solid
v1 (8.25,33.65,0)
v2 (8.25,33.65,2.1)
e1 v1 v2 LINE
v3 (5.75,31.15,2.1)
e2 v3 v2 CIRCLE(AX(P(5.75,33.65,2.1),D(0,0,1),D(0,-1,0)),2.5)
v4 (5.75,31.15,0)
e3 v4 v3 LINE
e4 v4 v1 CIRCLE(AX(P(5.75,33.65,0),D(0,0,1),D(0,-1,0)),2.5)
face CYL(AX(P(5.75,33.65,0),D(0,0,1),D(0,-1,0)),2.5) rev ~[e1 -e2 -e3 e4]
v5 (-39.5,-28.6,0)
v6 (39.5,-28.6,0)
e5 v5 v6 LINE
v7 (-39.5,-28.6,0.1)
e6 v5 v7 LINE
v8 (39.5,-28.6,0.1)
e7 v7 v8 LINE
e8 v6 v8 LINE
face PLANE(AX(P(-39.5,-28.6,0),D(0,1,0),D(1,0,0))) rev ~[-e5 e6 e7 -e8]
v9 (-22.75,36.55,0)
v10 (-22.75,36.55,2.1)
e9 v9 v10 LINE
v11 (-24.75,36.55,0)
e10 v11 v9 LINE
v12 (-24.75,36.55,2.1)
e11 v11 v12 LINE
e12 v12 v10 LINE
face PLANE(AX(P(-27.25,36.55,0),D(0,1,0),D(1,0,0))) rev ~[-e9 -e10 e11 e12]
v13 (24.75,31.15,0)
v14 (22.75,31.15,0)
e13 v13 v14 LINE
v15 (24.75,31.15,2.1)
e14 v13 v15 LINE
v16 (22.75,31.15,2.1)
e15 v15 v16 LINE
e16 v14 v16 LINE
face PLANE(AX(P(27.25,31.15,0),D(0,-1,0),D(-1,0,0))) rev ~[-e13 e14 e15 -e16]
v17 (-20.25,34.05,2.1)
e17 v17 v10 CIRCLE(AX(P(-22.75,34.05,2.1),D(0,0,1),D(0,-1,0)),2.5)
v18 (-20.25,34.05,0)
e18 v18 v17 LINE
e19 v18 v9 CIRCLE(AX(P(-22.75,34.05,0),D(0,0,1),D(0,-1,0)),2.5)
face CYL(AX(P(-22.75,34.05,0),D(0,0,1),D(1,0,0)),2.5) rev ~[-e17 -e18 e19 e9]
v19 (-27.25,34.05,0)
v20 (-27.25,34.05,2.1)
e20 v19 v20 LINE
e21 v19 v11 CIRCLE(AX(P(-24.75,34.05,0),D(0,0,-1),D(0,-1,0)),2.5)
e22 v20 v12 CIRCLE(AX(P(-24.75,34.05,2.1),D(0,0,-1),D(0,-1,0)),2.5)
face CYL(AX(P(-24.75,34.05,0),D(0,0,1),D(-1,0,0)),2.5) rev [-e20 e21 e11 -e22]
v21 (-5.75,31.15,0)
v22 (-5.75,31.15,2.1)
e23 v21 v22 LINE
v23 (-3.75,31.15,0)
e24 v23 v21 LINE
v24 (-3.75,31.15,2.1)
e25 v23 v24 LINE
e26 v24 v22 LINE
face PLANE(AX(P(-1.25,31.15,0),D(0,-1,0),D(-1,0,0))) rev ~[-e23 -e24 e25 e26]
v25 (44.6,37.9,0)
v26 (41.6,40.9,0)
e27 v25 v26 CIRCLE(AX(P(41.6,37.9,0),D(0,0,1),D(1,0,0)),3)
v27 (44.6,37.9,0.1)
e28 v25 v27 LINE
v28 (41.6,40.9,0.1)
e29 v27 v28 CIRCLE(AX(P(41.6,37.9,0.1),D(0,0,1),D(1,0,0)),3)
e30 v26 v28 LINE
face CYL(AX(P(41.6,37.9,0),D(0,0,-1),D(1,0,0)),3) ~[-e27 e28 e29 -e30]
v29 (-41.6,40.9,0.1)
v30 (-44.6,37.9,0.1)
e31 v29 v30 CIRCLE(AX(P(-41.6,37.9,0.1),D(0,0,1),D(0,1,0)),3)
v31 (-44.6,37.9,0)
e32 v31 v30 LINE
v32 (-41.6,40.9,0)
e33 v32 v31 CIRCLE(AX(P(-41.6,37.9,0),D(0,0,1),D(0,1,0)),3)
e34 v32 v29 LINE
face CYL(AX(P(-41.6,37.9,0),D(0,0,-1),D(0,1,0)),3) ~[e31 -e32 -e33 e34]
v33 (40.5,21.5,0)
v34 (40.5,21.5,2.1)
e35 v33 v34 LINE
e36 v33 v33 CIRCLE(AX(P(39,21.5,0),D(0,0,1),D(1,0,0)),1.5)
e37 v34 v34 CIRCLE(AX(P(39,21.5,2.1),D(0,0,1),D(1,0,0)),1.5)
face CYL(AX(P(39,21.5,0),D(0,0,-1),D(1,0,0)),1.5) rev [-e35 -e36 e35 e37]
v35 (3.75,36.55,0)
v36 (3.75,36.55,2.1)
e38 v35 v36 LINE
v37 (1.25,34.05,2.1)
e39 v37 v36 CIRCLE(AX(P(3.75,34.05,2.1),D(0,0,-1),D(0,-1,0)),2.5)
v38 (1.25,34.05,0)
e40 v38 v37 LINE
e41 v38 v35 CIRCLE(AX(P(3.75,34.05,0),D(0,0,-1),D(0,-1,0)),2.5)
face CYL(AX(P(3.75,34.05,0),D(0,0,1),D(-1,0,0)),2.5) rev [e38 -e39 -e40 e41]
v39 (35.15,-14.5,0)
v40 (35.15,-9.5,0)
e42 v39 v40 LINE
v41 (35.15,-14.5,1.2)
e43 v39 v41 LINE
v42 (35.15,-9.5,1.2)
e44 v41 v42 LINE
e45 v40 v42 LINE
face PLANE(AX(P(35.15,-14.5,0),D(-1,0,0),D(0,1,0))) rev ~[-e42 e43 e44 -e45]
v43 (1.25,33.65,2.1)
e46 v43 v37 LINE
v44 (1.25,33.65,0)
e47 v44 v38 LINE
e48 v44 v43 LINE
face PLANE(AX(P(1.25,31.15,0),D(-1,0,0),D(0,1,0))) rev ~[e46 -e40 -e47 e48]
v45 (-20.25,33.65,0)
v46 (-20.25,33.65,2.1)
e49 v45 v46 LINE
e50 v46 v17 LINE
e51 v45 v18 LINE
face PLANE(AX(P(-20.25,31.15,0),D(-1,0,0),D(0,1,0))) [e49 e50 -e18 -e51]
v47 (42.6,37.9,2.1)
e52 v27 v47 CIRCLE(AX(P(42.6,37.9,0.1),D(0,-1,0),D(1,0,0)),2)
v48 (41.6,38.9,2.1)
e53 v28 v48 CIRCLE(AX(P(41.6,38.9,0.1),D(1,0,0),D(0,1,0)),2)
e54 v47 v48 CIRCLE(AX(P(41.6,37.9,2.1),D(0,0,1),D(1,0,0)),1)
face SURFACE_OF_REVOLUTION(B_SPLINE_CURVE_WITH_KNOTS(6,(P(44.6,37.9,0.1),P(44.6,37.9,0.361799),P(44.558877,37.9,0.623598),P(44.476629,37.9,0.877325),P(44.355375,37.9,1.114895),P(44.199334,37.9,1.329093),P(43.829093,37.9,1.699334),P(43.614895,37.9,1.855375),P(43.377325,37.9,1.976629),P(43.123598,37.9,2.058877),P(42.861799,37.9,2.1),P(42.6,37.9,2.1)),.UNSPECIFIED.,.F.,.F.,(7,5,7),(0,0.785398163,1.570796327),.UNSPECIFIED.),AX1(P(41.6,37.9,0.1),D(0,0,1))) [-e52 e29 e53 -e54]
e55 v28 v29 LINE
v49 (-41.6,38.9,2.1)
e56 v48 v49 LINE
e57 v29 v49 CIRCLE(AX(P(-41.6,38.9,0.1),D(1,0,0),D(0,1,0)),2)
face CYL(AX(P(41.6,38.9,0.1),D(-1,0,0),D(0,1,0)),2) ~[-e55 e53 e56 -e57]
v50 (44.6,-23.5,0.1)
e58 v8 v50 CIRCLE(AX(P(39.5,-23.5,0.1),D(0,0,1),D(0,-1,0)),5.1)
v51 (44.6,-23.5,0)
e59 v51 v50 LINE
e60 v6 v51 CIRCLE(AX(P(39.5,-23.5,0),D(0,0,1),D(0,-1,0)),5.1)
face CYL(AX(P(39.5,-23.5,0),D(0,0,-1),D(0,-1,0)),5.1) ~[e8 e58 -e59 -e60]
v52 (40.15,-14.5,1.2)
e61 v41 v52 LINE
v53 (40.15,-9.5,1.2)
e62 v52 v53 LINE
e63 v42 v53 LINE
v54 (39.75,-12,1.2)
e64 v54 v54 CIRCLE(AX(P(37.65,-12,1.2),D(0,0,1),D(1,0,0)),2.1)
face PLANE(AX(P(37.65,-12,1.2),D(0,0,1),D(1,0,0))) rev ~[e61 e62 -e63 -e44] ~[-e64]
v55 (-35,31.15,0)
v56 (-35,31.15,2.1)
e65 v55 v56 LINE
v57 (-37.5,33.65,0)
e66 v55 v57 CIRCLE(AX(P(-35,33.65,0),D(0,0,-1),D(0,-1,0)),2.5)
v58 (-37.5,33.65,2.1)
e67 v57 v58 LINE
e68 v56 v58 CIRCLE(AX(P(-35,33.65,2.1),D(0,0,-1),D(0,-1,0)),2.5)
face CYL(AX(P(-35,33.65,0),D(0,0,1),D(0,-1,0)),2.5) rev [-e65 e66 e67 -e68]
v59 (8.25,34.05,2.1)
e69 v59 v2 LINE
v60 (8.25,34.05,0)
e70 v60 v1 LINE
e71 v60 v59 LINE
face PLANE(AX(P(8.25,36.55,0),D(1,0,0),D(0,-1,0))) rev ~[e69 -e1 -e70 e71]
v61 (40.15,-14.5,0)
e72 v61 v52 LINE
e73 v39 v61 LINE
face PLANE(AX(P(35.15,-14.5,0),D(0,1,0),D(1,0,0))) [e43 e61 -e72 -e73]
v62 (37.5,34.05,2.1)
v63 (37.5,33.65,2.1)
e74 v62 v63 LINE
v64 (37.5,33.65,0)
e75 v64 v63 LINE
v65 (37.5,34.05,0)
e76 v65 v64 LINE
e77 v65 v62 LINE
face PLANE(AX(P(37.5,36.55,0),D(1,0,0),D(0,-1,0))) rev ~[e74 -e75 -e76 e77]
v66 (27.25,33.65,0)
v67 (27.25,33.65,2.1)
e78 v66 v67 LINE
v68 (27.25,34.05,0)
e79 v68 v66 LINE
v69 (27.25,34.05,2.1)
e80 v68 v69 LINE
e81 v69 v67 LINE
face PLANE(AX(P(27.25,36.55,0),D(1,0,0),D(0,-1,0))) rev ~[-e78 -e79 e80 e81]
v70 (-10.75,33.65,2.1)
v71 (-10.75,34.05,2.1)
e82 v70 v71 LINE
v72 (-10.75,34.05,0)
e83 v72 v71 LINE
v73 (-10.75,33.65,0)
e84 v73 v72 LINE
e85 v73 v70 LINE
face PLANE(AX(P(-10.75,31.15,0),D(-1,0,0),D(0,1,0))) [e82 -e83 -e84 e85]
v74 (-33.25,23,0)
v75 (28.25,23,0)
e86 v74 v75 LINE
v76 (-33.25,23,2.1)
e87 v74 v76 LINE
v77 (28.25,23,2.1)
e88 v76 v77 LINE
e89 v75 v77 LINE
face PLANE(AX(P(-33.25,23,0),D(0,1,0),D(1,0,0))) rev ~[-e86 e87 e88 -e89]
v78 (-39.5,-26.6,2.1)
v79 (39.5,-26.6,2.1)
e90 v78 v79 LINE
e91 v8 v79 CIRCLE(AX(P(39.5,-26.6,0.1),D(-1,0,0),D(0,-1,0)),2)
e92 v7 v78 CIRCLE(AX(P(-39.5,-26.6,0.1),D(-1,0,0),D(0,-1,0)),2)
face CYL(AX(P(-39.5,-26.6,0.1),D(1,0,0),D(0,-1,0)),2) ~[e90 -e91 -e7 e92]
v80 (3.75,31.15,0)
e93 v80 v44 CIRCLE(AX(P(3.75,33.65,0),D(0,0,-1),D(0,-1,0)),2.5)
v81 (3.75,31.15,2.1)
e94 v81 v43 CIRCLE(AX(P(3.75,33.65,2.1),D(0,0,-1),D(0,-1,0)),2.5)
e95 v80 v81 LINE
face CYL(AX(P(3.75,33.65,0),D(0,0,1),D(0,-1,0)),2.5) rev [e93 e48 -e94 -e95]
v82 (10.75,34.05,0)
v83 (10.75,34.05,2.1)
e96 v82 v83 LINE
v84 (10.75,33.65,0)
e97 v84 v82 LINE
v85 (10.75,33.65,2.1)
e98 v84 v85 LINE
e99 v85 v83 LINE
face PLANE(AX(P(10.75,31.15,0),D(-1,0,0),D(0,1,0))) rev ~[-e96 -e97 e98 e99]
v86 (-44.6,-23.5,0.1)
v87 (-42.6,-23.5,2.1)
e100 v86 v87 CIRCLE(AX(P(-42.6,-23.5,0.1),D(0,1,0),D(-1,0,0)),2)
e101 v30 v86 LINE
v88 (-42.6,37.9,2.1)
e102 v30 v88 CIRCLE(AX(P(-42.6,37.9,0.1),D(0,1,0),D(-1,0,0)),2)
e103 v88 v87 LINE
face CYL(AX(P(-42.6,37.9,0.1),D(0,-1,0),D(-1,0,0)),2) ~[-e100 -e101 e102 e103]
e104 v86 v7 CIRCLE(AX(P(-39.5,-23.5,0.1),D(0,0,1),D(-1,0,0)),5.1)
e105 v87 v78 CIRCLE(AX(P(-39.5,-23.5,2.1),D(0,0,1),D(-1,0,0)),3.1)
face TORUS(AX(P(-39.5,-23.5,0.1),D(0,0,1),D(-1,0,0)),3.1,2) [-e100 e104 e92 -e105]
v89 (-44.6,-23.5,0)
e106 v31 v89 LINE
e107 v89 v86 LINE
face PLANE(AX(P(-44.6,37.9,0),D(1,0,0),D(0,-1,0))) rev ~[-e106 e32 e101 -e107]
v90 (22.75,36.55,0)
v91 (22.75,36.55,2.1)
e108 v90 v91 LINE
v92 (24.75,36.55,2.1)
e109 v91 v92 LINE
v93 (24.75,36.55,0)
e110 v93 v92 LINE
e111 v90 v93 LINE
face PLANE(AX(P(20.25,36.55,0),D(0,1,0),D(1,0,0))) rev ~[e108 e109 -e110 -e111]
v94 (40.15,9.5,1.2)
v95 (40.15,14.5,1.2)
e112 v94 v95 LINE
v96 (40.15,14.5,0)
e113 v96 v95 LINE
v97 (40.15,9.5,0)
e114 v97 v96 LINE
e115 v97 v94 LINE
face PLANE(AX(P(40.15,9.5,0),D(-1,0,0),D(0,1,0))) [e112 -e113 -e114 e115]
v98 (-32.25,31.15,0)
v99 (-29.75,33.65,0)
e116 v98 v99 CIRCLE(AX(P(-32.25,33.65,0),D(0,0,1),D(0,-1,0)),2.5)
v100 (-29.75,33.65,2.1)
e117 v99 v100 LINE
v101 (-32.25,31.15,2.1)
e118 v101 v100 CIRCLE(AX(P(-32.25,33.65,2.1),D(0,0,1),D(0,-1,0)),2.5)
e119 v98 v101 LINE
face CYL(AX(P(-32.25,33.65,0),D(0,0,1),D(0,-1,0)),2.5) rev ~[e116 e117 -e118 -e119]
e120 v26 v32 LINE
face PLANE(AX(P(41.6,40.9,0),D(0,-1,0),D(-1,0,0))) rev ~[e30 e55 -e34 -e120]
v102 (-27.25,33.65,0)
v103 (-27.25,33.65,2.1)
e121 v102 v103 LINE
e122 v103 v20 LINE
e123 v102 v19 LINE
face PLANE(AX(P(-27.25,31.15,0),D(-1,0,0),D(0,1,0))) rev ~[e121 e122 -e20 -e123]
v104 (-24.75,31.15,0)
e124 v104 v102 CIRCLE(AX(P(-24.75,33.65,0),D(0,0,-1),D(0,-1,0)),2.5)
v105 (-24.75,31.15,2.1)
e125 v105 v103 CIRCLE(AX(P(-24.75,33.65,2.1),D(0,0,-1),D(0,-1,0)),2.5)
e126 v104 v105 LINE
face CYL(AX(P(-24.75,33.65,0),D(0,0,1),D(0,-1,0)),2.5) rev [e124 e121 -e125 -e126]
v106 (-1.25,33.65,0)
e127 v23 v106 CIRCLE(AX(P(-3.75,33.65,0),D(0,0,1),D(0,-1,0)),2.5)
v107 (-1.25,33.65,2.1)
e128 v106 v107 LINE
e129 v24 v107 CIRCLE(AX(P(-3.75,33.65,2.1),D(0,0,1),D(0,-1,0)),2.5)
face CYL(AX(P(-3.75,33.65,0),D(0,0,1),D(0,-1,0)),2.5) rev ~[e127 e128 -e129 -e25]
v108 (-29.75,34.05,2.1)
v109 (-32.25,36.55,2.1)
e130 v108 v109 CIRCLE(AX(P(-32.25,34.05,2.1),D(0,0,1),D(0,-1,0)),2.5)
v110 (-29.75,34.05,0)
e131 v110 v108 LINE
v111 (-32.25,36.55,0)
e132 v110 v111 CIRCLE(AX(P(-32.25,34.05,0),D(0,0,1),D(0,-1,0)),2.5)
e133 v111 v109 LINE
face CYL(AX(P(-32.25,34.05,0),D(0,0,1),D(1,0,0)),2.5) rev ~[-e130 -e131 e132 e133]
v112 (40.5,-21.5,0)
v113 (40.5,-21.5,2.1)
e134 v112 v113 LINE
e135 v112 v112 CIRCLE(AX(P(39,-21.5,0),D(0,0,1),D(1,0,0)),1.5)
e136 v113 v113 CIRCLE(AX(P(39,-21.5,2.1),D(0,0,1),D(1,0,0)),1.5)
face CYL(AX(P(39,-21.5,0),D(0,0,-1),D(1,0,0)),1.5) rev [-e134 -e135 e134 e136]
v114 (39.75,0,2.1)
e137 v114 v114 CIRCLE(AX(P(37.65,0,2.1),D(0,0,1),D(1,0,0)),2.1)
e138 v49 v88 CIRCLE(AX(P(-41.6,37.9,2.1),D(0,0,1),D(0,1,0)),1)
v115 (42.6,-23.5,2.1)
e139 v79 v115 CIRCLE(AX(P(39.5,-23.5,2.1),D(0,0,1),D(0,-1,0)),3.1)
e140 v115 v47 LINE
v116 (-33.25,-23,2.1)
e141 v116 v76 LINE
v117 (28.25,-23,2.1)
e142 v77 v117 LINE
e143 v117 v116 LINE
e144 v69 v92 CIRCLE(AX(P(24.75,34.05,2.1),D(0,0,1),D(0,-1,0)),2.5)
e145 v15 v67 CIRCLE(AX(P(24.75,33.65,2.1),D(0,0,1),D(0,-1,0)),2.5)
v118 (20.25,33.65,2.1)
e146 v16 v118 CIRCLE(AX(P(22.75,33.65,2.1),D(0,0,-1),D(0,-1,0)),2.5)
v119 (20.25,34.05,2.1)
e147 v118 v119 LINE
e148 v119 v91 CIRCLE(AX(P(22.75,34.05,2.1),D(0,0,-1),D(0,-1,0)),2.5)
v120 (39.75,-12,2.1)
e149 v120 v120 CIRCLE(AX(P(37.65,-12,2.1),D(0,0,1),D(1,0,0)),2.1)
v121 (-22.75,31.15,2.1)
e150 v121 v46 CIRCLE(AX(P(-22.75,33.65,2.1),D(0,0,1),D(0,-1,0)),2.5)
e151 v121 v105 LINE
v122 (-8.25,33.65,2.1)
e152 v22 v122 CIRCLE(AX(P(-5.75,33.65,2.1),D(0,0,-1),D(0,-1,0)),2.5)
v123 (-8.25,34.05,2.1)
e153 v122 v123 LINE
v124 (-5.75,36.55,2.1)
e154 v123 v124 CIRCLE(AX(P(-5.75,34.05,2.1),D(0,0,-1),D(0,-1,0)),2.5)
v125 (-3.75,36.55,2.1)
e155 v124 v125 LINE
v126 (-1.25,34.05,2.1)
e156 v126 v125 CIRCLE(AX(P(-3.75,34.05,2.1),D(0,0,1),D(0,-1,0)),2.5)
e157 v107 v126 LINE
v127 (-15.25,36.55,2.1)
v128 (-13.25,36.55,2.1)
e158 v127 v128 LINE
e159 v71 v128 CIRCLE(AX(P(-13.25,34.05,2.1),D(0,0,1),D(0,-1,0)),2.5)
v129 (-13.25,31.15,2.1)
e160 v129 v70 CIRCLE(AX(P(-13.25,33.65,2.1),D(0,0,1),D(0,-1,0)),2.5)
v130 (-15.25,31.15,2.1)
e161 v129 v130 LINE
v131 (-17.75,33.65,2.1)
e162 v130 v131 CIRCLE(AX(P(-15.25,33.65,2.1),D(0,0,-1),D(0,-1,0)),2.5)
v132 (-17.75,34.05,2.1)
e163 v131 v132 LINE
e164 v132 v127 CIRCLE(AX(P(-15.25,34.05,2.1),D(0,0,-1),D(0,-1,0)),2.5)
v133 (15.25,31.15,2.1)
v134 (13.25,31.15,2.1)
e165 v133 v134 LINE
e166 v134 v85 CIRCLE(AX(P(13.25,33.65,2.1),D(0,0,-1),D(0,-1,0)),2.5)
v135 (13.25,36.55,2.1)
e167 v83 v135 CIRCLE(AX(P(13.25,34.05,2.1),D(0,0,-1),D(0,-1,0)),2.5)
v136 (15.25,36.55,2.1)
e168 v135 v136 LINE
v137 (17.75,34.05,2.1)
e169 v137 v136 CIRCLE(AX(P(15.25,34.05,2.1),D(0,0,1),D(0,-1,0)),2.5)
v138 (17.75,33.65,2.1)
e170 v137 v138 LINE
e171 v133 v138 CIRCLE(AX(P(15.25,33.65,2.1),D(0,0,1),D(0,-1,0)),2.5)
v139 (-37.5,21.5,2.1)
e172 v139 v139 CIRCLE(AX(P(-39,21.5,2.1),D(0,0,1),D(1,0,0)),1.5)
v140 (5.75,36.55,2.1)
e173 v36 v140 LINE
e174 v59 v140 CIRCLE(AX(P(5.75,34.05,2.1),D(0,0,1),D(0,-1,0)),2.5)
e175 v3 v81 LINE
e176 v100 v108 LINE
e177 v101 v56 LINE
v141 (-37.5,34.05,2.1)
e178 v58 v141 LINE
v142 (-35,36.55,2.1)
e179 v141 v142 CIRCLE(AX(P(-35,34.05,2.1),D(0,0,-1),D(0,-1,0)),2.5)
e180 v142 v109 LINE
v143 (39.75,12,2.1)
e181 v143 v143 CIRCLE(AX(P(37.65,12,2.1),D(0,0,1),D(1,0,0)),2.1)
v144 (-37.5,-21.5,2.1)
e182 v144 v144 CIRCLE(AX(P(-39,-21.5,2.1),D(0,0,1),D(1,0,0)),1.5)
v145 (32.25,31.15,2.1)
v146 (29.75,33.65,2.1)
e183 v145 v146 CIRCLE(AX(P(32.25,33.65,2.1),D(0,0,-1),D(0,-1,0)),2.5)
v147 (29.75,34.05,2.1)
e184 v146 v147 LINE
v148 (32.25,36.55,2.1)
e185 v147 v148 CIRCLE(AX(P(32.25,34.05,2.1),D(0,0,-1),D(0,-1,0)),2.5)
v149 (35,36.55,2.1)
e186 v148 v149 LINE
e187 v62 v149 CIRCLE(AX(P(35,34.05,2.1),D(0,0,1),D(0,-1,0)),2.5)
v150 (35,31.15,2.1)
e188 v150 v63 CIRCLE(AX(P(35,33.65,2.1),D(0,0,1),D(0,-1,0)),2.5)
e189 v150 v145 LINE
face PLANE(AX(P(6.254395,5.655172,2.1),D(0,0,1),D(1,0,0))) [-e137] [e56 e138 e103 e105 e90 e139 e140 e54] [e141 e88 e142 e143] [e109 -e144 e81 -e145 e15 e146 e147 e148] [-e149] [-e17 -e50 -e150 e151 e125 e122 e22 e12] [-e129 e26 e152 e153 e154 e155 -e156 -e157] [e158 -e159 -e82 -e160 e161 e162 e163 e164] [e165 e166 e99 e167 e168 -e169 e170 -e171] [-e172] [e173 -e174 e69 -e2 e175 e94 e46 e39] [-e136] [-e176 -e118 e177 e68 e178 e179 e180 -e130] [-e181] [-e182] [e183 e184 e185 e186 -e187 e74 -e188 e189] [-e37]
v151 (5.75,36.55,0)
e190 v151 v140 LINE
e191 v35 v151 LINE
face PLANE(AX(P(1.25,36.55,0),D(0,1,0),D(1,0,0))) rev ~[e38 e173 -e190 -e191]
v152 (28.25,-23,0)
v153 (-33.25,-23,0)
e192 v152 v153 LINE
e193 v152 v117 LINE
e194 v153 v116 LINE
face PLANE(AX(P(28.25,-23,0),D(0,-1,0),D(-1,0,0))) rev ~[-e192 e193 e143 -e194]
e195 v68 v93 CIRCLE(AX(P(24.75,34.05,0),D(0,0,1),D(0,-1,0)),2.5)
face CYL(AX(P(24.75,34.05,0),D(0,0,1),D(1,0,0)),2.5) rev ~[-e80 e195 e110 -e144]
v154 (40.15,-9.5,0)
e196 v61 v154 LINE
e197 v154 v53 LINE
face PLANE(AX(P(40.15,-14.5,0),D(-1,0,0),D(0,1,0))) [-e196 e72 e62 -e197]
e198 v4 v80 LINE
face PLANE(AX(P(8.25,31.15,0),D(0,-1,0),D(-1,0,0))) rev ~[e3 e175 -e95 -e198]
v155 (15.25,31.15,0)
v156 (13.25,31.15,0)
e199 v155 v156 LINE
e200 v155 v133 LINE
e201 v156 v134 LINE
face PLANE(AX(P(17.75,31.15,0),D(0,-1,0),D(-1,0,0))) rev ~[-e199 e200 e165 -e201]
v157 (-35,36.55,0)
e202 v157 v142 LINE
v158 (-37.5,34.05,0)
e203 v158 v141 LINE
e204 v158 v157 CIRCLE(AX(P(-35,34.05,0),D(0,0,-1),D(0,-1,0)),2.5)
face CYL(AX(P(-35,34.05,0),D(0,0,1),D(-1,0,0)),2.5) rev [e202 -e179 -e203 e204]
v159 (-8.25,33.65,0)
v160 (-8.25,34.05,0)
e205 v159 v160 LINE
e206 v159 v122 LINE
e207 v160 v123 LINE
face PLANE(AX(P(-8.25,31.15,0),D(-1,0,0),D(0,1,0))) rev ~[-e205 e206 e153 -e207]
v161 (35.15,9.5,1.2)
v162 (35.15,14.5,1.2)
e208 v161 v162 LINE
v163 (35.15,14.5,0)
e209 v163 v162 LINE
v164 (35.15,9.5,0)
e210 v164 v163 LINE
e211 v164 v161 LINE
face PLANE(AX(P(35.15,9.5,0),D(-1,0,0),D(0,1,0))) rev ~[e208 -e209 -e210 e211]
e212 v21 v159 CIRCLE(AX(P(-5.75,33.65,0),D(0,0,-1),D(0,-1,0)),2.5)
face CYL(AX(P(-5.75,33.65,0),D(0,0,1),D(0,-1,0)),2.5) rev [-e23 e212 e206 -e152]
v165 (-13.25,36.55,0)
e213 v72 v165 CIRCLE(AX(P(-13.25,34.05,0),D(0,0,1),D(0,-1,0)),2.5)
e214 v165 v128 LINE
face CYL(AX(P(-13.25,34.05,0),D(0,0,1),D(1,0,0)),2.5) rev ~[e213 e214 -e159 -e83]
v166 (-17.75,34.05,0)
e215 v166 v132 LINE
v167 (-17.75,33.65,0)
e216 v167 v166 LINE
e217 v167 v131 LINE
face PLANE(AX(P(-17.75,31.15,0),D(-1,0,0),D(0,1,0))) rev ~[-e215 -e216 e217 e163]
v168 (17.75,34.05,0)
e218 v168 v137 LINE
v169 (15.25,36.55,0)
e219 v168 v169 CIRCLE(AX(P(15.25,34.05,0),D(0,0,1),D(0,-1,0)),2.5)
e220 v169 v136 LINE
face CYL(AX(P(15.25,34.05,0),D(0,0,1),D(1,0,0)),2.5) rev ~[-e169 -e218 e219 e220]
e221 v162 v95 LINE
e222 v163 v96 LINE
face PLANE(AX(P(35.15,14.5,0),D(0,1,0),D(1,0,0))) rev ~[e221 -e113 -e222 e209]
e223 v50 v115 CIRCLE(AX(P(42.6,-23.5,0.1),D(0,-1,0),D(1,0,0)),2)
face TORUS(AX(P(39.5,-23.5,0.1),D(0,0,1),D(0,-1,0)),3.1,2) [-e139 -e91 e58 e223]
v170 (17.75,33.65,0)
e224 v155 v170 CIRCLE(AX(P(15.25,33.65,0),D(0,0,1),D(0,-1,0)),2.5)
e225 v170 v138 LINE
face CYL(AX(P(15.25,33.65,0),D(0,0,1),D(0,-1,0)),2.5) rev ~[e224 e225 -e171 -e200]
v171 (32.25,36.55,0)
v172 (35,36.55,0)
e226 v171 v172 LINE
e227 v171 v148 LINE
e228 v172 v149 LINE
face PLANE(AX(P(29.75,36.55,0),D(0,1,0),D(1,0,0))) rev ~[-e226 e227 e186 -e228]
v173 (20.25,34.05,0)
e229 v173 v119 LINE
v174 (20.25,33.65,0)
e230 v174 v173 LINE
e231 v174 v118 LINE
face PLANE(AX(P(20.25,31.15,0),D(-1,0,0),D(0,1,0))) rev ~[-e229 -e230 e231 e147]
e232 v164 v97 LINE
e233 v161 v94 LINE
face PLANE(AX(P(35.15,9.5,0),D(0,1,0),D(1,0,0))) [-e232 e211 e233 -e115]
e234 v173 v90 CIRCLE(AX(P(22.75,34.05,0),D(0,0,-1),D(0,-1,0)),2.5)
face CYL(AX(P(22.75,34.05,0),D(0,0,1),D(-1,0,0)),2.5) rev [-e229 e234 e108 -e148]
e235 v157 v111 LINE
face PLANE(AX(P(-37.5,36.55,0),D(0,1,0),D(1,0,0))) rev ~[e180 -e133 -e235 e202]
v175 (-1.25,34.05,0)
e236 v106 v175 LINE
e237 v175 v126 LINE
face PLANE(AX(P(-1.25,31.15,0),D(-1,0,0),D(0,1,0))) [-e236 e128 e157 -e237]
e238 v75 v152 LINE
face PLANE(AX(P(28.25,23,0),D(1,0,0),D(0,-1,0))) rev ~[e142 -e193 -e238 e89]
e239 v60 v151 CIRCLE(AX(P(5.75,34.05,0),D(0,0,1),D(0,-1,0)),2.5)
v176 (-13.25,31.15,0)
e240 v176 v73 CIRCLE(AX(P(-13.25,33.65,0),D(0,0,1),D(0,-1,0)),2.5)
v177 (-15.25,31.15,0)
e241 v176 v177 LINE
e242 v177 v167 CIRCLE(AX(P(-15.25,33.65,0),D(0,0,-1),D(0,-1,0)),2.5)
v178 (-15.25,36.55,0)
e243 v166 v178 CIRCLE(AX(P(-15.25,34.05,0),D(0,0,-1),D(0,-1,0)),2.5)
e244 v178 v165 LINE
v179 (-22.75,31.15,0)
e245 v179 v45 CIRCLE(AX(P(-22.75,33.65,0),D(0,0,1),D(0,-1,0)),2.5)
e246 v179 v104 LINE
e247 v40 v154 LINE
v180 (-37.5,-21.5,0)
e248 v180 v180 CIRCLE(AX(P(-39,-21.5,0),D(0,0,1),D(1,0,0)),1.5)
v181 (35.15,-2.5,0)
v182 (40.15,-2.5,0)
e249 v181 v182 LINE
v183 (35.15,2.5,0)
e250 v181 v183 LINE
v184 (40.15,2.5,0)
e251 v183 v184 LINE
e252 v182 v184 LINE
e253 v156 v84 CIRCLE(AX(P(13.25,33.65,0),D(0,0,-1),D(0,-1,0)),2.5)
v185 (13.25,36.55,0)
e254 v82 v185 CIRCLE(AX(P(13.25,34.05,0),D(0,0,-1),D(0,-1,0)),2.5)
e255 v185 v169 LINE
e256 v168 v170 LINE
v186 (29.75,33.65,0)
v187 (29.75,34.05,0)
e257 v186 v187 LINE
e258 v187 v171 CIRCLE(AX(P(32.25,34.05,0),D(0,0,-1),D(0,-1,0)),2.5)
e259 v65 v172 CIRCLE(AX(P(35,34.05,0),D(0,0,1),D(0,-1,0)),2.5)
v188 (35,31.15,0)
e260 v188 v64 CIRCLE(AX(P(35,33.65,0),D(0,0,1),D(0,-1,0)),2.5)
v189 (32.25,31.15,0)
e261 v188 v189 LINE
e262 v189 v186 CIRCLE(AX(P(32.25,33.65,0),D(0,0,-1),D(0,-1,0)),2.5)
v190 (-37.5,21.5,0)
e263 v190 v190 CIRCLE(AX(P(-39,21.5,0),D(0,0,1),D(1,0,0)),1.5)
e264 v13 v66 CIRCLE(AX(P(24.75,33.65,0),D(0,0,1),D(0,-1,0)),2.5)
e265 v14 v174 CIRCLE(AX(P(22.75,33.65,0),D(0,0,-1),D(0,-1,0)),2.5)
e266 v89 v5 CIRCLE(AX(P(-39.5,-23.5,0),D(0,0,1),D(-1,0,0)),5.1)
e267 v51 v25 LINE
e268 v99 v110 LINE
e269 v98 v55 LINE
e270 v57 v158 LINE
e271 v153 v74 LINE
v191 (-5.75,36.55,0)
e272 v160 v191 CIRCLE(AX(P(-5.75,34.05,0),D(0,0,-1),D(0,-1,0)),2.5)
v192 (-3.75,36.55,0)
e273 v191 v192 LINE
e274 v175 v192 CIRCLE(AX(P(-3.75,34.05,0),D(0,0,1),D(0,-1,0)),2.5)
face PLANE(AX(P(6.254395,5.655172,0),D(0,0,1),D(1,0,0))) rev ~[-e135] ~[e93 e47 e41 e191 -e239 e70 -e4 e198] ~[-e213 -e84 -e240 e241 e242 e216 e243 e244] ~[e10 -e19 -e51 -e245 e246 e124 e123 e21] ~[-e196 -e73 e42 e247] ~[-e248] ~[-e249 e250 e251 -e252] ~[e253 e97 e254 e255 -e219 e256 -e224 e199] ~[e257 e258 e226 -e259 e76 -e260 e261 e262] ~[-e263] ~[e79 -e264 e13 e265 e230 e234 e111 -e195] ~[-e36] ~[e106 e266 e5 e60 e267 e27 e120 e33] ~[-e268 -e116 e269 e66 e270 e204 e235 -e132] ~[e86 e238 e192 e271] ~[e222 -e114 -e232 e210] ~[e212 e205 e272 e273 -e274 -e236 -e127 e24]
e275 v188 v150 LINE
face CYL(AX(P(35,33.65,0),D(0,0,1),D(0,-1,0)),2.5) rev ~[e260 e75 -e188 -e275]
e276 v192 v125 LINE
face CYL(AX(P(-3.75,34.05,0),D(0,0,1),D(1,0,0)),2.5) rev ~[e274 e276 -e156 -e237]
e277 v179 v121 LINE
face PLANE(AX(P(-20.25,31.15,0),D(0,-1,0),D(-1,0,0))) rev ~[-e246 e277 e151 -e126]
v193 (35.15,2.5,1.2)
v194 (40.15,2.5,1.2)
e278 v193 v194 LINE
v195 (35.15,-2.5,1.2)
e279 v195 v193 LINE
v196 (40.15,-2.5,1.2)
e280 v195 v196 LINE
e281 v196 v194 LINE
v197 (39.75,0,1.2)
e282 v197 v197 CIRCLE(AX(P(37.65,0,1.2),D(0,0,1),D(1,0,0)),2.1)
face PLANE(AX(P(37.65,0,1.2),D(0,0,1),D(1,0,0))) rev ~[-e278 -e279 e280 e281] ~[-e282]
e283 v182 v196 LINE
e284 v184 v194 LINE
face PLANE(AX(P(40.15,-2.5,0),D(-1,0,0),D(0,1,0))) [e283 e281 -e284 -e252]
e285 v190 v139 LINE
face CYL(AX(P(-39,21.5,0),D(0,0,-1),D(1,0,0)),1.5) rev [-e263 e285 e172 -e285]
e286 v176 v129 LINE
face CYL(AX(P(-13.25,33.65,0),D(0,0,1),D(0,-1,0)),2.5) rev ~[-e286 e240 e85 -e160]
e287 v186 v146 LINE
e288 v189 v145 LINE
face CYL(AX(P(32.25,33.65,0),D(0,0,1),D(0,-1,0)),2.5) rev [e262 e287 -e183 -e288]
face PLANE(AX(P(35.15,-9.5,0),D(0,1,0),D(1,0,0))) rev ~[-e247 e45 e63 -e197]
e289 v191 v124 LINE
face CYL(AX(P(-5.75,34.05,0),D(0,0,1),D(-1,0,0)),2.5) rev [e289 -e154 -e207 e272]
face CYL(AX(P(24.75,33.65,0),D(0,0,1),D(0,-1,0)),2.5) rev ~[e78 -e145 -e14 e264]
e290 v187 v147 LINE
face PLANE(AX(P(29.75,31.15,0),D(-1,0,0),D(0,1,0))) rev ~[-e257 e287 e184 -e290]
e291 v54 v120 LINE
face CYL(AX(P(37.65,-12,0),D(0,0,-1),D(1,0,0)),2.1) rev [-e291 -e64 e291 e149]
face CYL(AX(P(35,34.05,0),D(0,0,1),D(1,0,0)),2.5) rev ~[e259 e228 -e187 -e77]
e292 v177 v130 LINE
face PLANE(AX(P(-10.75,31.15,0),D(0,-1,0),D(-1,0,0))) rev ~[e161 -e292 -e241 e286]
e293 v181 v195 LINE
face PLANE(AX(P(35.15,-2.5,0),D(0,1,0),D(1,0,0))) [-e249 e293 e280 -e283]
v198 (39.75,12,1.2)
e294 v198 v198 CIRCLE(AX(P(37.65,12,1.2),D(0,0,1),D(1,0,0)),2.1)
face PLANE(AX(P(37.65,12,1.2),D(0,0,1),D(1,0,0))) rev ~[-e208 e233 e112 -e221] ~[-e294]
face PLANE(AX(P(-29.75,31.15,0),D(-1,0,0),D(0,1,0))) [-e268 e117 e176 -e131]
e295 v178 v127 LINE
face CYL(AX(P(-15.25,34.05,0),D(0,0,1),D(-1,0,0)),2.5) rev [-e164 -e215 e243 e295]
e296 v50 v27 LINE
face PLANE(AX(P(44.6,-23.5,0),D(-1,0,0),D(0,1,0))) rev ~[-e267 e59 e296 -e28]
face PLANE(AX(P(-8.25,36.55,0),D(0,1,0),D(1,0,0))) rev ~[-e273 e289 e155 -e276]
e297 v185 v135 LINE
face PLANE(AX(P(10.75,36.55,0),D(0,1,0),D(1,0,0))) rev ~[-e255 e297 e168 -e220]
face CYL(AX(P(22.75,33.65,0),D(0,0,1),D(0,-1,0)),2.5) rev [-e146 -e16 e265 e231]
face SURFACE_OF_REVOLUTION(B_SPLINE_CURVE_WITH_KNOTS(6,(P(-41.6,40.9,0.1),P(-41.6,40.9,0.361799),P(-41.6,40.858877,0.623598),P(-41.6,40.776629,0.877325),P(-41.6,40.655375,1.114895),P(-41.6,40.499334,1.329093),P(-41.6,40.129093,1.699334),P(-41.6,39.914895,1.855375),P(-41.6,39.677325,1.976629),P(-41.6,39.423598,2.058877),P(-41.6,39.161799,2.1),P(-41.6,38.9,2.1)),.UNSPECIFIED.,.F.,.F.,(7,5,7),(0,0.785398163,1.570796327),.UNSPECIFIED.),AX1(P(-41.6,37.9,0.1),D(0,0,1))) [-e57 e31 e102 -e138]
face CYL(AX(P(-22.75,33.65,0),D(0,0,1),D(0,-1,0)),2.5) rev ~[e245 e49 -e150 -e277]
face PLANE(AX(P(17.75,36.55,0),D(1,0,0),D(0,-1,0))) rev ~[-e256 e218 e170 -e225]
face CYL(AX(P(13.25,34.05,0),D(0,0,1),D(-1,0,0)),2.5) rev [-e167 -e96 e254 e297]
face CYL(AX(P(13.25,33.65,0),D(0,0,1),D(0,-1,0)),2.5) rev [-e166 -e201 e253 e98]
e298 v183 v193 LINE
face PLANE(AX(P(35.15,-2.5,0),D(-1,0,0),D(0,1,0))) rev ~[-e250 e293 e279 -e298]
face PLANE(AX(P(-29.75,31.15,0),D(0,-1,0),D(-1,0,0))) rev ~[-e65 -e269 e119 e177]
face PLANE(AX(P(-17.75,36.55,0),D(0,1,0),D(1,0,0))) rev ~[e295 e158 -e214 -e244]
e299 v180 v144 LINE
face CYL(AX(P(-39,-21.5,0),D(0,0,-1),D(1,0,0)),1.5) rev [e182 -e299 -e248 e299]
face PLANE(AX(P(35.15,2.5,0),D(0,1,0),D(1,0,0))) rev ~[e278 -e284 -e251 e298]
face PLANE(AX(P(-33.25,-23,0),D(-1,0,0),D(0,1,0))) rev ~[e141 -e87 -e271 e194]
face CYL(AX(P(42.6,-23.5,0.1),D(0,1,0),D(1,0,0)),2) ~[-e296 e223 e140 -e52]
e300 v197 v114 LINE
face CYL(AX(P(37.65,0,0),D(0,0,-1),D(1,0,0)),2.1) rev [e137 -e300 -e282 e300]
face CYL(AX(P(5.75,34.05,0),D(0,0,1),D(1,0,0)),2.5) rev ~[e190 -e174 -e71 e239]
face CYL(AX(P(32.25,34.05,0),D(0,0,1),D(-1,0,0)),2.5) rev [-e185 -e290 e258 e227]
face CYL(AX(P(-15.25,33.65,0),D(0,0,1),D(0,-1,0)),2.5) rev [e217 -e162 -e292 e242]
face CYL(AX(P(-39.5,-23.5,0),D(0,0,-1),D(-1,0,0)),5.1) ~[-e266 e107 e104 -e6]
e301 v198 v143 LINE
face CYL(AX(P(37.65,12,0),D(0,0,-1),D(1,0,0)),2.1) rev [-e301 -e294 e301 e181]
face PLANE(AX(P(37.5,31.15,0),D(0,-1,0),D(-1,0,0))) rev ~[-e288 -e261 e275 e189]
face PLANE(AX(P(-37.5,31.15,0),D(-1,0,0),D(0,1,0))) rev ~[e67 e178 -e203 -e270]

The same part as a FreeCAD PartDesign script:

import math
import FreeCAD as App
import Part
import Sketcher


def edges_at(feature, points):
    """Names of the edges that pass closest to the given points."""
    edges = feature.Shape.Edges
    near = lambda p: min(range(len(edges)), key=lambda i: edges[i].distToShape(Part.Vertex(*p))[0])
    return sorted({f"Edge{near(p) + 1}" for p in points})

doc = App.newDocument("Part")
body = doc.addObject("PartDesign::Body", "Body")

sketch1 = body.newObject("Sketcher::SketchObject", "Sketch")
sketch1.AttachmentSupport = (doc.getObject("XY_Plane"), [""])
sketch1.MapMode = "FlatFace"
sketch1.addGeometry(Part.ArcOfCircle(Part.Circle(App.Vector(-39.5, -23.5, 0), App.Vector(0, 0, 1), 5.1), math.radians(180), math.radians(270)), False)
sketch1.addGeometry(Part.LineSegment(App.Vector(-39.5, -28.6, 0), App.Vector(39.5, -28.6, 0)), False)
sketch1.addGeometry(Part.ArcOfCircle(Part.Circle(App.Vector(39.5, -23.5, 0), App.Vector(0, 0, 1), 5.1), math.radians(-90), math.radians(0)), False)
sketch1.addGeometry(Part.LineSegment(App.Vector(44.6, -23.5, 0), App.Vector(44.6, 37.9, 0)), False)
sketch1.addGeometry(Part.ArcOfCircle(Part.Circle(App.Vector(41.6, 37.9, 0), App.Vector(0, 0, 1), 3), math.radians(0), math.radians(90)), False)
sketch1.addGeometry(Part.LineSegment(App.Vector(41.6, 40.9, 0), App.Vector(-41.6, 40.9, 0)), False)
sketch1.addGeometry(Part.ArcOfCircle(Part.Circle(App.Vector(-41.6, 37.9, 0), App.Vector(0, 0, 1), 3), math.radians(90), math.radians(180)), False)
sketch1.addGeometry(Part.LineSegment(App.Vector(-44.6, 37.9, 0), App.Vector(-44.6, -23.5, 0)), False)
sketch1.addGeometry(Part.Circle(App.Vector(-39, -21.5, 0), App.Vector(0, 0, 1), 1.5), False)
sketch1.addGeometry(Part.LineSegment(App.Vector(-33.25, -23, 0), App.Vector(-33.25, 23, 0)), False)
sketch1.addGeometry(Part.LineSegment(App.Vector(-33.25, 23, 0), App.Vector(28.25, 23, 0)), False)
sketch1.addGeometry(Part.LineSegment(App.Vector(28.25, 23, 0), App.Vector(28.25, -23, 0)), False)
sketch1.addGeometry(Part.LineSegment(App.Vector(28.25, -23, 0), App.Vector(-33.25, -23, 0)), False)
sketch1.addGeometry(Part.Circle(App.Vector(39, -21.5, 0), App.Vector(0, 0, 1), 1.5), False)
sketch1.addGeometry(Part.Circle(App.Vector(37.65, -12, 0), App.Vector(0, 0, 1), 2.1), False)
sketch1.addGeometry(Part.Circle(App.Vector(37.65, 0, 0), App.Vector(0, 0, 1), 2.1), False)
sketch1.addGeometry(Part.Circle(App.Vector(-39, 21.5, 0), App.Vector(0, 0, 1), 1.5), False)
sketch1.addGeometry(Part.LineSegment(App.Vector(-29.75, 31.15, 0), App.Vector(-37.5, 31.15, 0)), False)
sketch1.addGeometry(Part.LineSegment(App.Vector(-37.5, 31.15, 0), App.Vector(-37.5, 36.55, 0)), False)
sketch1.addGeometry(Part.LineSegment(App.Vector(-37.5, 36.55, 0), App.Vector(-29.75, 36.55, 0)), False)
sketch1.addGeometry(Part.LineSegment(App.Vector(-29.75, 36.55, 0), App.Vector(-29.75, 31.15, 0)), False)
sketch1.addGeometry(Part.LineSegment(App.Vector(-20.25, 31.15, 0), App.Vector(-27.25, 31.15, 0)), False)
sketch1.addGeometry(Part.LineSegment(App.Vector(-27.25, 31.15, 0), App.Vector(-27.25, 36.55, 0)), False)
sketch1.addGeometry(Part.LineSegment(App.Vector(-27.25, 36.55, 0), App.Vector(-20.25, 36.55, 0)), False)
sketch1.addGeometry(Part.LineSegment(App.Vector(-20.25, 36.55, 0), App.Vector(-20.25, 31.15, 0)), False)
sketch1.addGeometry(Part.LineSegment(App.Vector(-10.75, 31.15, 0), App.Vector(-17.75, 31.15, 0)), False)
sketch1.addGeometry(Part.LineSegment(App.Vector(-17.75, 31.15, 0), App.Vector(-17.75, 36.55, 0)), False)
sketch1.addGeometry(Part.LineSegment(App.Vector(-17.75, 36.55, 0), App.Vector(-10.75, 36.55, 0)), False)
sketch1.addGeometry(Part.LineSegment(App.Vector(-10.75, 36.55, 0), App.Vector(-10.75, 31.15, 0)), False)
sketch1.addGeometry(Part.LineSegment(App.Vector(-1.25, 31.15, 0), App.Vector(-8.25, 31.15, 0)), False)
sketch1.addGeometry(Part.LineSegment(App.Vector(-8.25, 31.15, 0), App.Vector(-8.25, 36.55, 0)), False)
sketch1.addGeometry(Part.LineSegment(App.Vector(-8.25, 36.55, 0), App.Vector(-1.25, 36.55, 0)), False)
sketch1.addGeometry(Part.LineSegment(App.Vector(-1.25, 36.55, 0), App.Vector(-1.25, 31.15, 0)), False)
sketch1.addGeometry(Part.Circle(App.Vector(37.65, 12, 0), App.Vector(0, 0, 1), 2.1), False)
sketch1.addGeometry(Part.Circle(App.Vector(39, 21.5, 0), App.Vector(0, 0, 1), 1.5), False)
sketch1.addGeometry(Part.LineSegment(App.Vector(8.25, 31.15, 0), App.Vector(1.25, 31.15, 0)), False)
sketch1.addGeometry(Part.LineSegment(App.Vector(1.25, 31.15, 0), App.Vector(1.25, 36.55, 0)), False)
sketch1.addGeometry(Part.LineSegment(App.Vector(1.25, 36.55, 0), App.Vector(8.25, 36.55, 0)), False)
sketch1.addGeometry(Part.LineSegment(App.Vector(8.25, 36.55, 0), App.Vector(8.25, 31.15, 0)), False)
sketch1.addGeometry(Part.LineSegment(App.Vector(17.75, 31.15, 0), App.Vector(10.75, 31.15, 0)), False)
sketch1.addGeometry(Part.LineSegment(App.Vector(10.75, 31.15, 0), App.Vector(10.75, 36.55, 0)), False)
sketch1.addGeometry(Part.LineSegment(App.Vector(10.75, 36.55, 0), App.Vector(17.75, 36.55, 0)), False)
sketch1.addGeometry(Part.LineSegment(App.Vector(17.75, 36.55, 0), App.Vector(17.75, 31.15, 0)), False)
sketch1.addGeometry(Part.LineSegment(App.Vector(27.25, 31.15, 0), App.Vector(20.25, 31.15, 0)), False)
sketch1.addGeometry(Part.LineSegment(App.Vector(20.25, 31.15, 0), App.Vector(20.25, 36.55, 0)), False)
sketch1.addGeometry(Part.LineSegment(App.Vector(20.25, 36.55, 0), App.Vector(27.25, 36.55, 0)), False)
sketch1.addGeometry(Part.LineSegment(App.Vector(27.25, 36.55, 0), App.Vector(27.25, 31.15, 0)), False)
sketch1.addGeometry(Part.LineSegment(App.Vector(37.5, 31.15, 0), App.Vector(29.75, 31.15, 0)), False)
sketch1.addGeometry(Part.LineSegment(App.Vector(29.75, 31.15, 0), App.Vector(29.75, 36.55, 0)), False)
sketch1.addGeometry(Part.LineSegment(App.Vector(29.75, 36.55, 0), App.Vector(37.5, 36.55, 0)), False)
sketch1.addGeometry(Part.LineSegment(App.Vector(37.5, 36.55, 0), App.Vector(37.5, 31.15, 0)), False)
sketch1.addConstraint(Sketcher.Constraint("Tangent", 0, 2, 1, 1))
sketch1.addConstraint(Sketcher.Constraint("Tangent", 1, 2, 2, 1))
sketch1.addConstraint(Sketcher.Constraint("Tangent", 2, 2, 3, 1))
sketch1.addConstraint(Sketcher.Constraint("Tangent", 3, 2, 4, 1))
sketch1.addConstraint(Sketcher.Constraint("Tangent", 4, 2, 5, 1))
sketch1.addConstraint(Sketcher.Constraint("Tangent", 5, 2, 6, 1))
sketch1.addConstraint(Sketcher.Constraint("Tangent", 6, 2, 7, 1))
sketch1.addConstraint(Sketcher.Constraint("Tangent", 7, 2, 0, 1))
sketch1.addConstraint(Sketcher.Constraint("Coincident", 9, 2, 10, 1))
sketch1.addConstraint(Sketcher.Constraint("Coincident", 10, 2, 11, 1))
sketch1.addConstraint(Sketcher.Constraint("Coincident", 11, 2, 12, 1))
sketch1.addConstraint(Sketcher.Constraint("Coincident", 12, 2, 9, 1))
sketch1.addConstraint(Sketcher.Constraint("Coincident", 17, 2, 18, 1))
sketch1.addConstraint(Sketcher.Constraint("Coincident", 18, 2, 19, 1))
sketch1.addConstraint(Sketcher.Constraint("Coincident", 19, 2, 20, 1))
sketch1.addConstraint(Sketcher.Constraint("Coincident", 20, 2, 17, 1))
sketch1.addConstraint(Sketcher.Constraint("Coincident", 21, 2, 22, 1))
sketch1.addConstraint(Sketcher.Constraint("Coincident", 22, 2, 23, 1))
sketch1.addConstraint(Sketcher.Constraint("Coincident", 23, 2, 24, 1))
sketch1.addConstraint(Sketcher.Constraint("Coincident", 24, 2, 21, 1))
sketch1.addConstraint(Sketcher.Constraint("Coincident", 25, 2, 26, 1))
sketch1.addConstraint(Sketcher.Constraint("Coincident", 26, 2, 27, 1))
sketch1.addConstraint(Sketcher.Constraint("Coincident", 27, 2, 28, 1))
sketch1.addConstraint(Sketcher.Constraint("Coincident", 28, 2, 25, 1))
sketch1.addConstraint(Sketcher.Constraint("Coincident", 29, 2, 30, 1))
sketch1.addConstraint(Sketcher.Constraint("Coincident", 30, 2, 31, 1))
sketch1.addConstraint(Sketcher.Constraint("Coincident", 31, 2, 32, 1))
sketch1.addConstraint(Sketcher.Constraint("Coincident", 32, 2, 29, 1))
sketch1.addConstraint(Sketcher.Constraint("Coincident", 35, 2, 36, 1))
sketch1.addConstraint(Sketcher.Constraint("Coincident", 36, 2, 37, 1))
sketch1.addConstraint(Sketcher.Constraint("Coincident", 37, 2, 38, 1))
sketch1.addConstraint(Sketcher.Constraint("Coincident", 38, 2, 35, 1))
sketch1.addConstraint(Sketcher.Constraint("Coincident", 39, 2, 40, 1))
sketch1.addConstraint(Sketcher.Constraint("Coincident", 40, 2, 41, 1))
sketch1.addConstraint(Sketcher.Constraint("Coincident", 41, 2, 42, 1))
sketch1.addConstraint(Sketcher.Constraint("Coincident", 42, 2, 39, 1))
sketch1.addConstraint(Sketcher.Constraint("Coincident", 43, 2, 44, 1))
sketch1.addConstraint(Sketcher.Constraint("Coincident", 44, 2, 45, 1))
sketch1.addConstraint(Sketcher.Constraint("Coincident", 45, 2, 46, 1))
sketch1.addConstraint(Sketcher.Constraint("Coincident", 46, 2, 43, 1))
sketch1.addConstraint(Sketcher.Constraint("Coincident", 47, 2, 48, 1))
sketch1.addConstraint(Sketcher.Constraint("Coincident", 48, 2, 49, 1))
sketch1.addConstraint(Sketcher.Constraint("Coincident", 49, 2, 50, 1))
sketch1.addConstraint(Sketcher.Constraint("Coincident", 50, 2, 47, 1))
sketch1.addConstraint(Sketcher.Constraint("Horizontal", 1))
sketch1.addConstraint(Sketcher.Constraint("Vertical", 3))
sketch1.addConstraint(Sketcher.Constraint("Horizontal", 5))
sketch1.addConstraint(Sketcher.Constraint("Vertical", 7))
sketch1.addConstraint(Sketcher.Constraint("Vertical", 9))
sketch1.addConstraint(Sketcher.Constraint("Horizontal", 10))
sketch1.addConstraint(Sketcher.Constraint("Vertical", 11))
sketch1.addConstraint(Sketcher.Constraint("Horizontal", 12))
sketch1.addConstraint(Sketcher.Constraint("Horizontal", 17))
sketch1.addConstraint(Sketcher.Constraint("Vertical", 18))
sketch1.addConstraint(Sketcher.Constraint("Horizontal", 19))
sketch1.addConstraint(Sketcher.Constraint("Vertical", 20))
sketch1.addConstraint(Sketcher.Constraint("Horizontal", 21))
sketch1.addConstraint(Sketcher.Constraint("Vertical", 22))
sketch1.addConstraint(Sketcher.Constraint("Horizontal", 23))
sketch1.addConstraint(Sketcher.Constraint("Vertical", 24))
sketch1.addConstraint(Sketcher.Constraint("Horizontal", 25))
sketch1.addConstraint(Sketcher.Constraint("Vertical", 26))
sketch1.addConstraint(Sketcher.Constraint("Horizontal", 27))
sketch1.addConstraint(Sketcher.Constraint("Vertical", 28))
sketch1.addConstraint(Sketcher.Constraint("Horizontal", 29))
sketch1.addConstraint(Sketcher.Constraint("Vertical", 30))
sketch1.addConstraint(Sketcher.Constraint("Horizontal", 31))
sketch1.addConstraint(Sketcher.Constraint("Vertical", 32))
sketch1.addConstraint(Sketcher.Constraint("Horizontal", 35))
sketch1.addConstraint(Sketcher.Constraint("Vertical", 36))
sketch1.addConstraint(Sketcher.Constraint("Horizontal", 37))
sketch1.addConstraint(Sketcher.Constraint("Vertical", 38))
sketch1.addConstraint(Sketcher.Constraint("Horizontal", 39))
sketch1.addConstraint(Sketcher.Constraint("Vertical", 40))
sketch1.addConstraint(Sketcher.Constraint("Horizontal", 41))
sketch1.addConstraint(Sketcher.Constraint("Vertical", 42))
sketch1.addConstraint(Sketcher.Constraint("Horizontal", 43))
sketch1.addConstraint(Sketcher.Constraint("Vertical", 44))
sketch1.addConstraint(Sketcher.Constraint("Horizontal", 45))
sketch1.addConstraint(Sketcher.Constraint("Vertical", 46))
sketch1.addConstraint(Sketcher.Constraint("Horizontal", 47))
sketch1.addConstraint(Sketcher.Constraint("Vertical", 48))
sketch1.addConstraint(Sketcher.Constraint("Horizontal", 49))
sketch1.addConstraint(Sketcher.Constraint("Vertical", 50))
sketch1.addConstraint(Sketcher.Constraint("Equal", 0, 2))
sketch1.addConstraint(Sketcher.Constraint("Equal", 4, 6))
sketch1.addConstraint(Sketcher.Constraint("Equal", 8, 13))
sketch1.addConstraint(Sketcher.Constraint("Equal", 14, 15))
sketch1.addConstraint(Sketcher.Constraint("Equal", 13, 16))
sketch1.addConstraint(Sketcher.Constraint("Equal", 15, 33))
sketch1.addConstraint(Sketcher.Constraint("Equal", 16, 34))
sketch1.addConstraint(Sketcher.Constraint("Symmetric", 13, 3, 16, 3, -1, 1))
sketch1.addConstraint(Sketcher.Constraint("Symmetric", 8, 3, 34, 3, -1, 1))
sketch1.addConstraint(Sketcher.Constraint("Symmetric", 8, 3, 13, 3, -2))
sketch1.addConstraint(Sketcher.Constraint("Symmetric", 32, 2, 35, 2, -2))
sketch1.addConstraint(Sketcher.Constraint("Symmetric", 30, 2, 37, 2, -2))
sketch1.addConstraint(Sketcher.Constraint("Symmetric", 28, 2, 39, 2, -2))
sketch1.addConstraint(Sketcher.Constraint("Symmetric", 26, 2, 41, 2, -2))
sketch1.addConstraint(Sketcher.Constraint("Symmetric", 24, 2, 43, 2, -2))
sketch1.addConstraint(Sketcher.Constraint("Symmetric", 22, 2, 45, 2, -2))
sketch1.addConstraint(Sketcher.Constraint("Symmetric", 20, 2, 47, 2, -2))
sketch1.addConstraint(Sketcher.Constraint("Symmetric", 18, 2, 49, 2, -2))
sketch1.addConstraint(Sketcher.Constraint("Symmetric", 14, 3, 33, 3, -1))
sketch1.addConstraint(Sketcher.Constraint("PointOnObject", 15, 3, -1))
sketch1.addConstraint(Sketcher.Constraint("Horizontal", 20, 2, 21, 2))
sketch1.addConstraint(Sketcher.Constraint("Horizontal", 19, 2, 22, 2))
sketch1.addConstraint(Sketcher.Constraint("Horizontal", 24, 2, 25, 2))
sketch1.addConstraint(Sketcher.Constraint("Horizontal", 23, 2, 26, 2))
sketch1.addConstraint(Sketcher.Constraint("Horizontal", 28, 2, 29, 2))
sketch1.addConstraint(Sketcher.Constraint("Horizontal", 27, 2, 30, 2))
sketch1.addConstraint(Sketcher.Constraint("Vertical", 14, 3, 15, 3))
sketch1.addConstraint(Sketcher.Constraint("Equal", 23, 25))
sketch1.addConstraint(Sketcher.Constraint("Equal", 27, 29))
sketch1.addConstraint(Sketcher.Constraint("Diameter", 8, 3.0))
sketch1.addConstraint(Sketcher.Constraint("Radius", 4, 3.0))
sketch1.addConstraint(Sketcher.Constraint("Diameter", 14, 4.2))
sketch1.addConstraint(Sketcher.Constraint("Radius", 0, 5.1))
sketch1.addConstraint(Sketcher.Constraint("DistanceX", 1, 1, 1, 2, 79.0))
sketch1.addConstraint(Sketcher.Constraint("DistanceX", 21, 2, 21, 1, 7.0))
sketch1.addConstraint(Sketcher.Constraint("DistanceY", 9, 1, 9, 2, 46.0))
sketch1.addConstraint(Sketcher.Constraint("DistanceX", 10, 1, 10, 2, 61.5))
sketch1.addConstraint(Sketcher.Constraint("DistanceY", 3, 1, 3, 2, 61.4))
sketch1.addConstraint(Sketcher.Constraint("DistanceY", 18, 1, 18, 2, 5.4))
sketch1.addConstraint(Sketcher.Constraint("DistanceX", 8, 3, -1, 1, 39.0))
sketch1.addConstraint(Sketcher.Constraint("DistanceY", 14, 3, -1, 1, 12.0))
sketch1.addConstraint(Sketcher.Constraint("DistanceY", -1, 1, 9, 2, 23.0))
sketch1.addConstraint(Sketcher.Constraint("DistanceY", 0, 3, 8, 3, 2.0))
sketch1.addConstraint(Sketcher.Constraint("DistanceY", 8, 3, 16, 3, 43.0))
sketch1.addConstraint(Sketcher.Constraint("DistanceX", 9, 2, 21, 2, 6.0))
sketch1.addConstraint(Sketcher.Constraint("DistanceX", 20, 2, 25, 2, 12.0))
sketch1.addConstraint(Sketcher.Constraint("DistanceX", 24, 2, 29, 2, 12.0))
sketch1.addConstraint(Sketcher.Constraint("DistanceX", 28, 2, 35, 2, 12.0))
sketch1.addConstraint(Sketcher.Constraint("DistanceX", 43, 2, 10, 2, 8.0))
sketch1.addConstraint(Sketcher.Constraint("DistanceX", 17, 2, 17, 1, 7.75))
sketch1.addConstraint(Sketcher.Constraint("DistanceX", 0, 3, -1, 1, 39.5))
sketch1.addConstraint(Sketcher.Constraint("DistanceX", 10, 2, 33, 3, 9.4))
sketch1.addConstraint(Sketcher.Constraint("DistanceY", -1, 1, 17, 2, 31.15))
pad1 = body.newObject("PartDesign::Pad", "Pad")
pad1.Profile = sketch1
pad1.Length = 2.1
doc.recompute()

fillet = body.newObject("PartDesign::Fillet", "Fillet")
fillet.Base = (pad1, edges_at(pad1, [(-44.6, 7.2, 2.1)]))
fillet.Radius = 2
doc.recompute()

fillet2 = body.newObject("PartDesign::Fillet", "Fillet001")
fillet2.Base = (fillet, edges_at(fillet, [
    (-37.5, 36.55, 1.05),
    (-27.25, 36.55, 1.05),
    (-17.75, 36.55, 1.05),
    (-8.25, 36.55, 1.05),
    (1.25, 36.55, 1.05),
    (10.75, 36.55, 1.05),
    (20.25, 36.55, 1.05),
    (29.75, 36.55, 1.05),
    (37.5, 36.55, 1.05),
    (27.25, 36.55, 1.05),
    (17.75, 36.55, 1.05),
    (8.25, 36.55, 1.05),
    (-1.25, 36.55, 1.05),
    (-10.75, 36.55, 1.05),
    (-20.25, 36.55, 1.05),
    (-29.75, 36.55, 1.05),
    (-37.5, 31.15, 1.05),
    (-27.25, 31.15, 1.05),
    (-17.75, 31.15, 1.05),
    (-8.25, 31.15, 1.05),
    (1.25, 31.15, 1.05),
    (10.75, 31.15, 1.05),
    (29.75, 31.15, 1.05),
    (20.25, 31.15, 1.05),
    (37.5, 31.15, 1.05),
    (17.75, 31.15, 1.05),
    (27.25, 31.15, 1.05),
    (8.25, 31.15, 1.05),
    (-1.25, 31.15, 1.05),
    (-10.75, 31.15, 1.05),
    (-20.25, 31.15, 1.05),
    (-29.75, 31.15, 1.05),
]))
fillet2.Radius = 2.5

sketch2 = body.newObject("Sketcher::SketchObject", "Sketch001")
sketch2.AttachmentSupport = (doc.getObject("XY_Plane"), [""])
sketch2.MapMode = "FlatFace"
sketch2.addGeometry(Part.LineSegment(App.Vector(35.15, 14.5, 0), App.Vector(35.15, 9.5, 0)), False)
sketch2.addGeometry(Part.LineSegment(App.Vector(35.15, 9.5, 0), App.Vector(40.15, 9.5, 0)), False)
sketch2.addGeometry(Part.LineSegment(App.Vector(40.15, 9.5, 0), App.Vector(40.15, 14.5, 0)), False)
sketch2.addGeometry(Part.LineSegment(App.Vector(40.15, 14.5, 0), App.Vector(35.15, 14.5, 0)), False)
sketch2.addGeometry(Part.Circle(App.Vector(37.65, 12, 0), App.Vector(0, 0, 1), 2.1), False)
sketch2.addGeometry(Part.LineSegment(App.Vector(35.15, 2.5, 0), App.Vector(35.15, -2.5, 0)), False)
sketch2.addGeometry(Part.LineSegment(App.Vector(35.15, -2.5, 0), App.Vector(40.15, -2.5, 0)), False)
sketch2.addGeometry(Part.LineSegment(App.Vector(40.15, -2.5, 0), App.Vector(40.15, 2.5, 0)), False)
sketch2.addGeometry(Part.LineSegment(App.Vector(40.15, 2.5, 0), App.Vector(35.15, 2.5, 0)), False)
sketch2.addGeometry(Part.Circle(App.Vector(37.65, 0, 0), App.Vector(0, 0, 1), 2.1), False)
sketch2.addGeometry(Part.LineSegment(App.Vector(35.15, -9.5, 0), App.Vector(35.15, -14.5, 0)), False)
sketch2.addGeometry(Part.LineSegment(App.Vector(35.15, -14.5, 0), App.Vector(40.15, -14.5, 0)), False)
sketch2.addGeometry(Part.LineSegment(App.Vector(40.15, -14.5, 0), App.Vector(40.15, -9.5, 0)), False)
sketch2.addGeometry(Part.LineSegment(App.Vector(40.15, -9.5, 0), App.Vector(35.15, -9.5, 0)), False)
sketch2.addGeometry(Part.Circle(App.Vector(37.65, -12, 0), App.Vector(0, 0, 1), 2.1), False)
sketch2.addConstraint(Sketcher.Constraint("Coincident", 0, 2, 1, 1))
sketch2.addConstraint(Sketcher.Constraint("Coincident", 1, 2, 2, 1))
sketch2.addConstraint(Sketcher.Constraint("Coincident", 2, 2, 3, 1))
sketch2.addConstraint(Sketcher.Constraint("Coincident", 3, 2, 0, 1))
sketch2.addConstraint(Sketcher.Constraint("Coincident", 5, 2, 6, 1))
sketch2.addConstraint(Sketcher.Constraint("Coincident", 6, 2, 7, 1))
sketch2.addConstraint(Sketcher.Constraint("Coincident", 7, 2, 8, 1))
sketch2.addConstraint(Sketcher.Constraint("Coincident", 8, 2, 5, 1))
sketch2.addConstraint(Sketcher.Constraint("Coincident", 10, 2, 11, 1))
sketch2.addConstraint(Sketcher.Constraint("Coincident", 11, 2, 12, 1))
sketch2.addConstraint(Sketcher.Constraint("Coincident", 12, 2, 13, 1))
sketch2.addConstraint(Sketcher.Constraint("Coincident", 13, 2, 10, 1))
sketch2.addConstraint(Sketcher.Constraint("Vertical", 0))
sketch2.addConstraint(Sketcher.Constraint("Horizontal", 1))
sketch2.addConstraint(Sketcher.Constraint("Vertical", 2))
sketch2.addConstraint(Sketcher.Constraint("Horizontal", 3))
sketch2.addConstraint(Sketcher.Constraint("Vertical", 5))
sketch2.addConstraint(Sketcher.Constraint("Horizontal", 6))
sketch2.addConstraint(Sketcher.Constraint("Vertical", 7))
sketch2.addConstraint(Sketcher.Constraint("Horizontal", 8))
sketch2.addConstraint(Sketcher.Constraint("Vertical", 10))
sketch2.addConstraint(Sketcher.Constraint("Horizontal", 11))
sketch2.addConstraint(Sketcher.Constraint("Vertical", 12))
sketch2.addConstraint(Sketcher.Constraint("Horizontal", 13))
sketch2.addConstraint(Sketcher.Constraint("Equal", 4, 9))
sketch2.addConstraint(Sketcher.Constraint("Equal", 9, 14))
sketch2.addConstraint(Sketcher.Constraint("Symmetric", 4, 3, 14, 3, -1))
sketch2.addConstraint(Sketcher.Constraint("Symmetric", 3, 2, 10, 2, -1))
sketch2.addConstraint(Sketcher.Constraint("Symmetric", 1, 2, 12, 2, -1))
sketch2.addConstraint(Sketcher.Constraint("PointOnObject", 9, 3, -1))
sketch2.addConstraint(Sketcher.Constraint("Vertical", 4, 3, 9, 3))
sketch2.addConstraint(Sketcher.Constraint("Vertical", 3, 2, 5, 2))
sketch2.addConstraint(Sketcher.Constraint("Vertical", 2, 2, 6, 2))
sketch2.addConstraint(Sketcher.Constraint("Equal", 13, 0))
sketch2.addConstraint(Sketcher.Constraint("Equal", 2, 5))
sketch2.addConstraint(Sketcher.Constraint("Diameter", 4, 4.2))
sketch2.addConstraint(Sketcher.Constraint("DistanceX", 1, 1, 1, 2, 5.0))
sketch2.addConstraint(Sketcher.Constraint("DistanceY", -1, 1, 4, 3, 12.0))
sketch2.addConstraint(Sketcher.Constraint("DistanceY", 5, 2, 0, 2, 12.0))
sketch2.addConstraint(Sketcher.Constraint("DistanceY", 10, 2, 5, 2, 12.0))
sketch2.addConstraint(Sketcher.Constraint("DistanceX", 0, 2, 4, 3, 2.5))
sketch2.addConstraint(Sketcher.Constraint("DistanceX", -1, 1, 4, 3, 37.65))
pocket1 = body.newObject("PartDesign::Pocket", "Pocket")
pocket1.Profile = sketch2
pocket1.Length = 1.2
pocket1.Reversed = True

doc.recompute()
